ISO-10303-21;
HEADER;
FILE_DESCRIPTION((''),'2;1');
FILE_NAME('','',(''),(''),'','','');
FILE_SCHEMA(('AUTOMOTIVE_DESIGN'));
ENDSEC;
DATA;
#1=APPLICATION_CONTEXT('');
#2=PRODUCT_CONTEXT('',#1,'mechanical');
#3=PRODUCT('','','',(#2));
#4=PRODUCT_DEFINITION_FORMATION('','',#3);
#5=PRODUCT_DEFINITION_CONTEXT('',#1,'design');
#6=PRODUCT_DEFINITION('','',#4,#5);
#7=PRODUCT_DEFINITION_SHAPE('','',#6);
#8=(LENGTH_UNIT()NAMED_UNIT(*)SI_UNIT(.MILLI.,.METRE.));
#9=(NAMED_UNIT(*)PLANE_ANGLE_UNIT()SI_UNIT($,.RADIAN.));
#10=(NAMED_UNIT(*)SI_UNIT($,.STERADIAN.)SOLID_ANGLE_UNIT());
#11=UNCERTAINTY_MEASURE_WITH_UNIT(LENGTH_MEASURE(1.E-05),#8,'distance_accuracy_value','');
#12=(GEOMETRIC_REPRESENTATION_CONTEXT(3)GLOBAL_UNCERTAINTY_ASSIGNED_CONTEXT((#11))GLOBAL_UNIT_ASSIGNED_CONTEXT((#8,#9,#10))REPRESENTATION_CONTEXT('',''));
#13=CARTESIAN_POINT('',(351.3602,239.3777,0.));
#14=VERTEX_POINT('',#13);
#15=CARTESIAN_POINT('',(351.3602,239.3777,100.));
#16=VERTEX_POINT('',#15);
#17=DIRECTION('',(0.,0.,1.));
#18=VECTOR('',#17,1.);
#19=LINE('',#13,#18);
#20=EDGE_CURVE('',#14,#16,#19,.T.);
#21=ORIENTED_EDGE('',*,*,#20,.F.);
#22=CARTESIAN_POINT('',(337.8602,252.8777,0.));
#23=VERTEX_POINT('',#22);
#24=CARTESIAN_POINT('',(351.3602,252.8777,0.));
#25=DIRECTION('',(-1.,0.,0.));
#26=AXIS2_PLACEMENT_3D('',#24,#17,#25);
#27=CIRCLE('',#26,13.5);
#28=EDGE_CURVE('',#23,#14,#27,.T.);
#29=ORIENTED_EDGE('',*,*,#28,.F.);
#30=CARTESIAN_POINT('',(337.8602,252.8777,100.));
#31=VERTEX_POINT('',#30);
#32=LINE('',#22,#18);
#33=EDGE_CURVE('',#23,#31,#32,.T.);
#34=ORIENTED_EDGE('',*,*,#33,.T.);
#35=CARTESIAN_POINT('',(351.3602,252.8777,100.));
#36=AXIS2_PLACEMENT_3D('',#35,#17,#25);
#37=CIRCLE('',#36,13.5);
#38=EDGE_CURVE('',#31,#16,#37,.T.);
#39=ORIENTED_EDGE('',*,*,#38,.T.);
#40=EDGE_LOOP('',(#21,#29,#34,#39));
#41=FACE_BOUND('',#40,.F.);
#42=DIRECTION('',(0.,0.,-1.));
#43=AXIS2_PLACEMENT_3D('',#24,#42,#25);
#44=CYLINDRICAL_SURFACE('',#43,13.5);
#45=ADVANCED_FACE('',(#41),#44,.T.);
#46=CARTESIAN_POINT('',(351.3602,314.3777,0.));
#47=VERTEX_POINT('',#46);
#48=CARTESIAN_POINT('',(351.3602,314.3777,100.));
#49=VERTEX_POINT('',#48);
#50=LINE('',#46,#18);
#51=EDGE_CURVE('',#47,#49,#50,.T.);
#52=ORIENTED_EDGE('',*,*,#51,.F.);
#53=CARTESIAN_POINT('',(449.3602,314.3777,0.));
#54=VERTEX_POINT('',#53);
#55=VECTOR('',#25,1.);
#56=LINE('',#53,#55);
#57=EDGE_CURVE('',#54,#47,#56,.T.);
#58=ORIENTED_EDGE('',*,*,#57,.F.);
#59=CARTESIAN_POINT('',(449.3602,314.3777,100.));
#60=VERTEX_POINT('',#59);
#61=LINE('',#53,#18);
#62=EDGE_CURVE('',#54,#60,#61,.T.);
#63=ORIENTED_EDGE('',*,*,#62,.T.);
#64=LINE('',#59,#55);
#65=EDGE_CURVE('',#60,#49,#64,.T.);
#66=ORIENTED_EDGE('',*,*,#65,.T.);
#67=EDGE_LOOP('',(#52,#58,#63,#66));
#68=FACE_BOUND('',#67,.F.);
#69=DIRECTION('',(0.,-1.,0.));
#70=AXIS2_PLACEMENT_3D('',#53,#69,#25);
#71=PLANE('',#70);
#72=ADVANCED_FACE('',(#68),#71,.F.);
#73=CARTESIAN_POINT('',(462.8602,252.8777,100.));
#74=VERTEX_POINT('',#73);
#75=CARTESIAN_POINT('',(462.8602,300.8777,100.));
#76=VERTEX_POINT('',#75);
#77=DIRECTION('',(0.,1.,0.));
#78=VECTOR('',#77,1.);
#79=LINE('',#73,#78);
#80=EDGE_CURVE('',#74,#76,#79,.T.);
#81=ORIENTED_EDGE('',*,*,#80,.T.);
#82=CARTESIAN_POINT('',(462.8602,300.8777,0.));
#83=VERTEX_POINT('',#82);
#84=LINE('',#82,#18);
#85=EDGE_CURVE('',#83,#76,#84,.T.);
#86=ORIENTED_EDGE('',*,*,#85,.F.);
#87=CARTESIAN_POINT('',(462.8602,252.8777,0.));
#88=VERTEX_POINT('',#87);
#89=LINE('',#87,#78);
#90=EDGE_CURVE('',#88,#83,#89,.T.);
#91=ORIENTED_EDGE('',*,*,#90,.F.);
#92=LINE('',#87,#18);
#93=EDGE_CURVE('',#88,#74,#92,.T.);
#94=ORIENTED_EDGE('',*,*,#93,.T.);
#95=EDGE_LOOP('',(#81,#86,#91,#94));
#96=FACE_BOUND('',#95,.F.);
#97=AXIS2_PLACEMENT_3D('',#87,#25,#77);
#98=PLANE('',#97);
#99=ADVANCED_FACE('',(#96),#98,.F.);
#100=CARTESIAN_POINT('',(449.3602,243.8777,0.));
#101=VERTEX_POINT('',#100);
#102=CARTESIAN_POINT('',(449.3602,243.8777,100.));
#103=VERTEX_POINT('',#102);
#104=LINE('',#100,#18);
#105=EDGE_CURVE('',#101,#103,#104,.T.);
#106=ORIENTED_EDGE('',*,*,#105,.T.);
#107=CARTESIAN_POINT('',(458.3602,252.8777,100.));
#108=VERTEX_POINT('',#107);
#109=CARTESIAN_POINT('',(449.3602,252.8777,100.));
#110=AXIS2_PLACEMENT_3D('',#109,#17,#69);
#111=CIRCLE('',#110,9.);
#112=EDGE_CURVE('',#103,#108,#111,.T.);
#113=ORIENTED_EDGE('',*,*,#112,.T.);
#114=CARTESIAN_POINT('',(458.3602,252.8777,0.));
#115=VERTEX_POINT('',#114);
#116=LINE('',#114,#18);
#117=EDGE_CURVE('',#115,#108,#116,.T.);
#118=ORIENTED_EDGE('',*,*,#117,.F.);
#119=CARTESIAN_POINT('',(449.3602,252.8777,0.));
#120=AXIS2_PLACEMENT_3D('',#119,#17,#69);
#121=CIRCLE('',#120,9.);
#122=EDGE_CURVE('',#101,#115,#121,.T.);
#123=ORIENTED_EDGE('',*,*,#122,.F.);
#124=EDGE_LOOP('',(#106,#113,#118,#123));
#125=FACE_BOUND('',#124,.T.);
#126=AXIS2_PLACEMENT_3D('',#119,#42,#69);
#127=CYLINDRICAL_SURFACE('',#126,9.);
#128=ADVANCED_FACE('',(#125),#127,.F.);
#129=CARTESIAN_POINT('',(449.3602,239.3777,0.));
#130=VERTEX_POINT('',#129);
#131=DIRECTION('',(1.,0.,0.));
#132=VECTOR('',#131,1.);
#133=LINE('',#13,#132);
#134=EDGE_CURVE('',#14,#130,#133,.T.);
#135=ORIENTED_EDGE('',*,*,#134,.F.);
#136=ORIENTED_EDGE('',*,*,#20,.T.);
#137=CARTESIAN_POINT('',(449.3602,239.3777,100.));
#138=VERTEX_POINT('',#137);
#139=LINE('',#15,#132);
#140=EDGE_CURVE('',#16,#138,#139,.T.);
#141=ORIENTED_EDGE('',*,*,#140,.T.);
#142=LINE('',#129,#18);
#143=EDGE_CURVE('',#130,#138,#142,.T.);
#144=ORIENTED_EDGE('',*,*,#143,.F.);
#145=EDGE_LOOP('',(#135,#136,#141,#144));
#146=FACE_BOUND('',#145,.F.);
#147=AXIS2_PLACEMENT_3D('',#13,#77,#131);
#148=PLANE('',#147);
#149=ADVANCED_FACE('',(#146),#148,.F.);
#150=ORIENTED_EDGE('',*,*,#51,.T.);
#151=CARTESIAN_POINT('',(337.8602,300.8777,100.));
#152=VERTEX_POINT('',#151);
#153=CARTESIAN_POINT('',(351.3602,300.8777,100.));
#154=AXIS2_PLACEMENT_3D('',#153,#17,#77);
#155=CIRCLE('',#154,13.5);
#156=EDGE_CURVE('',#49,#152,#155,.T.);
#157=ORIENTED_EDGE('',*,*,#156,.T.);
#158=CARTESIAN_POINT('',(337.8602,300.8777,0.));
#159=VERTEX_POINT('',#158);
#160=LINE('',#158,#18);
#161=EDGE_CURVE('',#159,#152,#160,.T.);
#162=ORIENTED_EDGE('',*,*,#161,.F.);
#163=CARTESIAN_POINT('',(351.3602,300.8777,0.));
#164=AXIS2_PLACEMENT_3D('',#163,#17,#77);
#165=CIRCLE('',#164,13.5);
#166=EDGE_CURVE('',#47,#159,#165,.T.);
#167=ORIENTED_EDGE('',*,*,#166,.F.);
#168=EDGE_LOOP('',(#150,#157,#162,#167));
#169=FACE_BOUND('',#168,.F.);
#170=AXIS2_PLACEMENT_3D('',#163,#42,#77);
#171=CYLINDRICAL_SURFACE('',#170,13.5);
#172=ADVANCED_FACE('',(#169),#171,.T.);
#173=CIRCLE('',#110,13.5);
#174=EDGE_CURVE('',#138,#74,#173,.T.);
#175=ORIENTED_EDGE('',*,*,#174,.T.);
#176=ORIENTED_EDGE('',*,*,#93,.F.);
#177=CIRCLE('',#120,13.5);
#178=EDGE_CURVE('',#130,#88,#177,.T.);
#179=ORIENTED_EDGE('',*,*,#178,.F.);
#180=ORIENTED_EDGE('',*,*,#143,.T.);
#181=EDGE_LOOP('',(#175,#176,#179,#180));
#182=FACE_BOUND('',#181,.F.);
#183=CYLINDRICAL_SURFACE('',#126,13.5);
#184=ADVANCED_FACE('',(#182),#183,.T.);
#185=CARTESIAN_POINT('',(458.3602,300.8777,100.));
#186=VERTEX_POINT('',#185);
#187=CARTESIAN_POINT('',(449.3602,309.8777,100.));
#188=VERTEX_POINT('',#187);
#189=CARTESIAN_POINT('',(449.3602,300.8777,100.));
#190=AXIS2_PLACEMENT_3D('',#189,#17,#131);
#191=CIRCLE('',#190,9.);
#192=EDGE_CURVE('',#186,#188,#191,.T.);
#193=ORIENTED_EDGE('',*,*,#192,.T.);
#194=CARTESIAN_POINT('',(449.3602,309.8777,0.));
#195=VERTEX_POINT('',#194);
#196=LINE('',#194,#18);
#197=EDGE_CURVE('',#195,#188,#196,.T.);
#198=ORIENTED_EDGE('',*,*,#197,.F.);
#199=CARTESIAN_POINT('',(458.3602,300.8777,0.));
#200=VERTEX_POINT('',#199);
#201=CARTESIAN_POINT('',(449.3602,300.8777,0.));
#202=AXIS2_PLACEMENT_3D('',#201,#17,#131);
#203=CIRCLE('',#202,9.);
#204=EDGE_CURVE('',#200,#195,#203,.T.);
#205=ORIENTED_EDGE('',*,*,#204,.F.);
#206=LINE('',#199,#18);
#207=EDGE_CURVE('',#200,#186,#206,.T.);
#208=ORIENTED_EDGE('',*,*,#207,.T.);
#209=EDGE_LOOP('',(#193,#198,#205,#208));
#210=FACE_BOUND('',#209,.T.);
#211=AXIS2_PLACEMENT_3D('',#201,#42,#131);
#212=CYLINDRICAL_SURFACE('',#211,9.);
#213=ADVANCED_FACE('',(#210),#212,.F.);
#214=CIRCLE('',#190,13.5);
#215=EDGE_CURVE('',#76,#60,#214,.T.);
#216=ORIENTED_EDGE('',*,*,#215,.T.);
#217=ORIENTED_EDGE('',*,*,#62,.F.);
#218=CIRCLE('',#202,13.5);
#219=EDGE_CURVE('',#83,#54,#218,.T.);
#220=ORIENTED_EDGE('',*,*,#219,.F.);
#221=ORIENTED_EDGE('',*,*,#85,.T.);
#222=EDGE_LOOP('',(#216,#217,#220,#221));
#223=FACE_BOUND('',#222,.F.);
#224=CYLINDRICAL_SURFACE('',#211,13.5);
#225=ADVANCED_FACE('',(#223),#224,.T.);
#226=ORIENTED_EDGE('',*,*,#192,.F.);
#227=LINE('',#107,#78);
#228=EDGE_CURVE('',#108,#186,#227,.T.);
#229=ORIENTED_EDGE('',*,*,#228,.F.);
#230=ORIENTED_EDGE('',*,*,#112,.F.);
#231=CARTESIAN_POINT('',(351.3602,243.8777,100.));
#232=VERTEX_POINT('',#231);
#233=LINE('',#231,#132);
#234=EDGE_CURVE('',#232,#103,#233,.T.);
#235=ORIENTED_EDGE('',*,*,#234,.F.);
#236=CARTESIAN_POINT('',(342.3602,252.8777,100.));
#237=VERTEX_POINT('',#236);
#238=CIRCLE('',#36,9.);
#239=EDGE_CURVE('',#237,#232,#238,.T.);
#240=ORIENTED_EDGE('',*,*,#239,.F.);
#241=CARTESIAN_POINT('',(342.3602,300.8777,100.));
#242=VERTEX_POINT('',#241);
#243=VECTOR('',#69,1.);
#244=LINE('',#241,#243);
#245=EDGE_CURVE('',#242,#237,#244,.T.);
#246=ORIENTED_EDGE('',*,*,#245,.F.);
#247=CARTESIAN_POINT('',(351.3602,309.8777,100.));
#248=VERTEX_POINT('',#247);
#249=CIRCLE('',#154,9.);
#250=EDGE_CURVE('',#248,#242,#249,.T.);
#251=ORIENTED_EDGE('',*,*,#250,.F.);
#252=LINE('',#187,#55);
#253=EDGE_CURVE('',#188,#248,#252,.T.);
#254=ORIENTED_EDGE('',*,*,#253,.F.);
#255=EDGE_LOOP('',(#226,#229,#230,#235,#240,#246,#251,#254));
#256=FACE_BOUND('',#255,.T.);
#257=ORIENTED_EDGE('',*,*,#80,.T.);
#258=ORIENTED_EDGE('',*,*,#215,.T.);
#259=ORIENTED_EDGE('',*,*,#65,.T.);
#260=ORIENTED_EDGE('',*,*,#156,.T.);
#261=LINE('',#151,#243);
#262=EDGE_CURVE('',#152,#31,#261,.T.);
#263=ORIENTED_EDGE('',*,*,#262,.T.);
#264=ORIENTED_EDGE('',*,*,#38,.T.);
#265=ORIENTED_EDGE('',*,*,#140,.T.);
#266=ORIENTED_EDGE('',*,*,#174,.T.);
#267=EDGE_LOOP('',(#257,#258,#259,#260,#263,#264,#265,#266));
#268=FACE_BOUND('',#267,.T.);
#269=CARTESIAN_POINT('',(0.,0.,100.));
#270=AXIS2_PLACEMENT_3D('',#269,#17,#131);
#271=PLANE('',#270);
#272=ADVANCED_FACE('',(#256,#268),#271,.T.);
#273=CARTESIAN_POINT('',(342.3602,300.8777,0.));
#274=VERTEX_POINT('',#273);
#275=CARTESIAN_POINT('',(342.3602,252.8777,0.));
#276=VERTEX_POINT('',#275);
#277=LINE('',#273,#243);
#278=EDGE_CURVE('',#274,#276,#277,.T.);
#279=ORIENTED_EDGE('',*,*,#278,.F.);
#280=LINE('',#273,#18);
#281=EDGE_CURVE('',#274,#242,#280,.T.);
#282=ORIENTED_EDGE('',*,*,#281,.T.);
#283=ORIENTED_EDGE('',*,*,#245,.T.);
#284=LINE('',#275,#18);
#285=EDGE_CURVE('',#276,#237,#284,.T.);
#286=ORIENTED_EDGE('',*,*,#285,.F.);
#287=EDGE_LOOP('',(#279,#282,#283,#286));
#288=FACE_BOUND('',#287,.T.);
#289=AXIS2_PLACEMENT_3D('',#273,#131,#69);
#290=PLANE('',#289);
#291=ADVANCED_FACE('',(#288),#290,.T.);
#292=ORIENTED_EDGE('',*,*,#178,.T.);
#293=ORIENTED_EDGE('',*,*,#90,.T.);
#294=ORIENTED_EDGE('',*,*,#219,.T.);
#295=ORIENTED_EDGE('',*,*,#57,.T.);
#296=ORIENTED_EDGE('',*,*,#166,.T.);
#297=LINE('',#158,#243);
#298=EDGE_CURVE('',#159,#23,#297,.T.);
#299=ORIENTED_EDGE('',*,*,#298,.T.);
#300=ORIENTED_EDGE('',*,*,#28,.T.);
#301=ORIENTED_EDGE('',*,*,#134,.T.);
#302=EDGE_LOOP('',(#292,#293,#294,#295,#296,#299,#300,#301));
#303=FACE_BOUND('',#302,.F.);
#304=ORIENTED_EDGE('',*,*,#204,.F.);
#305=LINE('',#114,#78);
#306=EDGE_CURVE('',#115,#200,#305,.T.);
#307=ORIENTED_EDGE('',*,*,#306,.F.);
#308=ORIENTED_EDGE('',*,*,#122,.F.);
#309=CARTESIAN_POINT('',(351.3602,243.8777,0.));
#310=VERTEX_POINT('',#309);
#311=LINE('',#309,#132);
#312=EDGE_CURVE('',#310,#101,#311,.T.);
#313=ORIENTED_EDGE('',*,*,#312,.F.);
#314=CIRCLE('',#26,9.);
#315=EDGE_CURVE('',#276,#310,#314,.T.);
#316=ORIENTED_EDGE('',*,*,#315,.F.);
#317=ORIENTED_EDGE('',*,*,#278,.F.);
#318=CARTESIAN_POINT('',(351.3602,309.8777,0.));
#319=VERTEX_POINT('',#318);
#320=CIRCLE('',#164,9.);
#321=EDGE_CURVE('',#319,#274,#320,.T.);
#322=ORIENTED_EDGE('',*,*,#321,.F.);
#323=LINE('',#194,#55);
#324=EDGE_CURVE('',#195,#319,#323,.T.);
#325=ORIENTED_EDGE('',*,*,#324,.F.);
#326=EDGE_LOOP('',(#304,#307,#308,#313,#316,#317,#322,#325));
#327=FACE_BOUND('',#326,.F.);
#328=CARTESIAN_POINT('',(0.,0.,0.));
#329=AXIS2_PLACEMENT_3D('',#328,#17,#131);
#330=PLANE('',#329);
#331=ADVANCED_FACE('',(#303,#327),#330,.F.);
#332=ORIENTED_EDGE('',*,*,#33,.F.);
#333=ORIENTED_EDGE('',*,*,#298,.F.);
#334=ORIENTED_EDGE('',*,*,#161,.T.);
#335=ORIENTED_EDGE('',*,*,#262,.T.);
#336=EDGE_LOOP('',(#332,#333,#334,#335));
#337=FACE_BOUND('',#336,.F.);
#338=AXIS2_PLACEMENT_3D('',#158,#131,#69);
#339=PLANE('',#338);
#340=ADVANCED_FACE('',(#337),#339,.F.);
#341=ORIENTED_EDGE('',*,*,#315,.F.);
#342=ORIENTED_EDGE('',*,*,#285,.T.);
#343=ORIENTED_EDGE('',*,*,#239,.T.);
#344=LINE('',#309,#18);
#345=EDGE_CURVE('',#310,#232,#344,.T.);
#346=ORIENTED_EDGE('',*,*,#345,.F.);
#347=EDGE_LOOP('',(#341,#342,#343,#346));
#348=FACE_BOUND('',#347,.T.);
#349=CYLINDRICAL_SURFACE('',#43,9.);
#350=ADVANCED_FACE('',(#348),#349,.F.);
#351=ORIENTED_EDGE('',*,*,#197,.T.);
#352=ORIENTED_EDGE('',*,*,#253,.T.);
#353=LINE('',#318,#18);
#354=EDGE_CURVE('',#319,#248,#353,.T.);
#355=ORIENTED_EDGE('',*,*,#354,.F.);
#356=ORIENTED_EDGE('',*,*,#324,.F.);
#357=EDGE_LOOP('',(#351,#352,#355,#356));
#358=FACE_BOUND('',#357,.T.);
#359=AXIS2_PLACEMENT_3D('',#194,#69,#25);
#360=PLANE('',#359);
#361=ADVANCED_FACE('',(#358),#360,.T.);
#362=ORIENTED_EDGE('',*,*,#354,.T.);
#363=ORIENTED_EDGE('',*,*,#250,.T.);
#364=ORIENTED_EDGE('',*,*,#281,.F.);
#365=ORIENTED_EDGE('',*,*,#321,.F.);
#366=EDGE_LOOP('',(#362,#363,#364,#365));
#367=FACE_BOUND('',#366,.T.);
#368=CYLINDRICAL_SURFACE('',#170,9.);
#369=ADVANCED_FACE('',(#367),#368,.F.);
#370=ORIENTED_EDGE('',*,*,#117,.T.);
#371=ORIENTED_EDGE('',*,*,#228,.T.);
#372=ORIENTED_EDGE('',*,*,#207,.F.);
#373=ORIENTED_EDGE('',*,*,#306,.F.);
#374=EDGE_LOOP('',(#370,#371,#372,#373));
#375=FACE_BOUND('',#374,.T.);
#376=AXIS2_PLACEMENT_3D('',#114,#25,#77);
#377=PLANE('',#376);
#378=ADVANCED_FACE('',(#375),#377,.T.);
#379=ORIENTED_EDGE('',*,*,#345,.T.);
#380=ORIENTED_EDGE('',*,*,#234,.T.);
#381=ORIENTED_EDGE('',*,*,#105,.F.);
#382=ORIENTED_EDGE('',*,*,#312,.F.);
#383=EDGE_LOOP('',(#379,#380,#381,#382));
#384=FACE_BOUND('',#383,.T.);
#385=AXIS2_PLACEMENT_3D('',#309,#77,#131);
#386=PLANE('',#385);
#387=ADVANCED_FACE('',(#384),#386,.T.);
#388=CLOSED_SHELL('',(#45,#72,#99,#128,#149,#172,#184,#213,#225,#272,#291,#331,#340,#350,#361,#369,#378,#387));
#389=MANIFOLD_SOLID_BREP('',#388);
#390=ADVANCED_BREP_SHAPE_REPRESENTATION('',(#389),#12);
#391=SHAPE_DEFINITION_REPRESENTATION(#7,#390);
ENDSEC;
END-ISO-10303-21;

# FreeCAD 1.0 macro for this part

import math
import FreeCAD as App
import Part
import Sketcher

doc = App.newDocument("Part")
body = doc.addObject("PartDesign::Body", "Body")

# Sketch on XY plane
sketch1 = body.newObject("Sketcher::SketchObject", "Sketch")
sketch1.AttachmentSupport = (doc.getObject("XY_Plane"), [""])
sketch1.MapMode = "FlatFace"
sketch1.addGeometry([
    Part.LineSegment(App.Vector(351.3602, 239.3777, 0), App.Vector(449.3602, 239.3777, 0)),  # 0
    Part.ArcOfCircle(Part.Circle(App.Vector(449.3602, 252.8777, 0), App.Vector(0, 0, 1), 13.5), math.radians(-90), math.radians(0)),  # 1
    Part.LineSegment(App.Vector(462.8602, 252.8777, 0), App.Vector(462.8602, 300.8777, 0)),  # 2
    Part.ArcOfCircle(Part.Circle(App.Vector(449.3602, 300.8777, 0), App.Vector(0, 0, 1), 13.5), math.radians(0), math.radians(90)),  # 3
    Part.LineSegment(App.Vector(449.3602, 314.3777, 0), App.Vector(351.3602, 314.3777, 0)),  # 4
    Part.ArcOfCircle(Part.Circle(App.Vector(351.3602, 300.8777, 0), App.Vector(0, 0, 1), 13.5), math.radians(90), math.radians(180)),  # 5
    Part.LineSegment(App.Vector(337.8602, 300.8777, 0), App.Vector(337.8602, 252.8777, 0)),  # 6
    Part.ArcOfCircle(Part.Circle(App.Vector(351.3602, 252.8777, 0), App.Vector(0, 0, 1), 13.5), math.radians(180), math.radians(270)),  # 7
    Part.ArcOfCircle(Part.Circle(App.Vector(449.3602, 252.8777, 0), App.Vector(0, 0, 1), 9), math.radians(-90), math.radians(0)),  # 8
    Part.LineSegment(App.Vector(449.3602, 243.8777, 0), App.Vector(351.3602, 243.8777, 0)),  # 9
    Part.ArcOfCircle(Part.Circle(App.Vector(351.3602, 252.8777, 0), App.Vector(0, 0, 1), 9), math.radians(180), math.radians(270)),  # 10
    Part.LineSegment(App.Vector(342.3602, 252.8777, 0), App.Vector(342.3602, 300.8777, 0)),  # 11
    Part.ArcOfCircle(Part.Circle(App.Vector(351.3602, 300.8777, 0), App.Vector(0, 0, 1), 9), math.radians(90), math.radians(180)),  # 12
    Part.LineSegment(App.Vector(351.3602, 309.8777, 0), App.Vector(449.3602, 309.8777, 0)),  # 13
    Part.ArcOfCircle(Part.Circle(App.Vector(449.3602, 300.8777, 0), App.Vector(0, 0, 1), 9), math.radians(0), math.radians(90)),  # 14
    Part.LineSegment(App.Vector(458.3602, 300.8777, 0), App.Vector(458.3602, 252.8777, 0)),  # 15
], False)
sketch1.addConstraint([
    Sketcher.Constraint("Tangent", 0, 2, 1, 1),
    Sketcher.Constraint("Tangent", 1, 2, 2, 1),
    Sketcher.Constraint("Tangent", 2, 2, 3, 1),
    Sketcher.Constraint("Tangent", 3, 2, 4, 1),
    Sketcher.Constraint("Tangent", 4, 2, 5, 1),
    Sketcher.Constraint("Tangent", 5, 2, 6, 1),
    Sketcher.Constraint("Tangent", 6, 2, 7, 1),
    Sketcher.Constraint("Tangent", 7, 2, 0, 1),
    Sketcher.Constraint("Tangent", 8, 1, 9, 1),
    Sketcher.Constraint("Tangent", 9, 2, 10, 2),
    Sketcher.Constraint("Tangent", 10, 1, 11, 1),
    Sketcher.Constraint("Tangent", 11, 2, 12, 2),
    Sketcher.Constraint("Tangent", 12, 1, 13, 1),
    Sketcher.Constraint("Tangent", 13, 2, 14, 2),
    Sketcher.Constraint("Tangent", 14, 1, 15, 1),
    Sketcher.Constraint("Tangent", 15, 2, 8, 2),
    Sketcher.Constraint("Horizontal", 0),
    Sketcher.Constraint("Vertical", 2),
    Sketcher.Constraint("Horizontal", 4),
    Sketcher.Constraint("Vertical", 6),
    Sketcher.Constraint("Horizontal", 9),
    Sketcher.Constraint("Vertical", 11),
    Sketcher.Constraint("Horizontal", 13),
    Sketcher.Constraint("Vertical", 15),
    Sketcher.Constraint("Coincident", 8, 3, 1, 3),
    Sketcher.Constraint("Coincident", 10, 3, 7, 3),
    Sketcher.Constraint("Coincident", 12, 3, 5, 3),
    Sketcher.Constraint("Equal", 1, 3),
    Sketcher.Constraint("Equal", 3, 5),
    Sketcher.Constraint("Equal", 5, 7),
    Sketcher.Constraint("Equal", 12, 14),
    Sketcher.Constraint("Radius", 8, 9.0),
    Sketcher.Constraint("Radius", 1, 13.5),
    Sketcher.Constraint("DistanceX", 0, 1, 0, 2, 98.0),
    Sketcher.Constraint("DistanceY", 2, 1, 2, 2, 48.0),
    Sketcher.Constraint("DistanceX", -1, 1, 1, 3, 449.3602),
    Sketcher.Constraint("DistanceY", -1, 1, 1, 3, 252.8777),
])
pad1 = body.newObject("PartDesign::Pad", "Pad")
pad1.Profile = sketch1
pad1.Length = 100

doc.recompute()
